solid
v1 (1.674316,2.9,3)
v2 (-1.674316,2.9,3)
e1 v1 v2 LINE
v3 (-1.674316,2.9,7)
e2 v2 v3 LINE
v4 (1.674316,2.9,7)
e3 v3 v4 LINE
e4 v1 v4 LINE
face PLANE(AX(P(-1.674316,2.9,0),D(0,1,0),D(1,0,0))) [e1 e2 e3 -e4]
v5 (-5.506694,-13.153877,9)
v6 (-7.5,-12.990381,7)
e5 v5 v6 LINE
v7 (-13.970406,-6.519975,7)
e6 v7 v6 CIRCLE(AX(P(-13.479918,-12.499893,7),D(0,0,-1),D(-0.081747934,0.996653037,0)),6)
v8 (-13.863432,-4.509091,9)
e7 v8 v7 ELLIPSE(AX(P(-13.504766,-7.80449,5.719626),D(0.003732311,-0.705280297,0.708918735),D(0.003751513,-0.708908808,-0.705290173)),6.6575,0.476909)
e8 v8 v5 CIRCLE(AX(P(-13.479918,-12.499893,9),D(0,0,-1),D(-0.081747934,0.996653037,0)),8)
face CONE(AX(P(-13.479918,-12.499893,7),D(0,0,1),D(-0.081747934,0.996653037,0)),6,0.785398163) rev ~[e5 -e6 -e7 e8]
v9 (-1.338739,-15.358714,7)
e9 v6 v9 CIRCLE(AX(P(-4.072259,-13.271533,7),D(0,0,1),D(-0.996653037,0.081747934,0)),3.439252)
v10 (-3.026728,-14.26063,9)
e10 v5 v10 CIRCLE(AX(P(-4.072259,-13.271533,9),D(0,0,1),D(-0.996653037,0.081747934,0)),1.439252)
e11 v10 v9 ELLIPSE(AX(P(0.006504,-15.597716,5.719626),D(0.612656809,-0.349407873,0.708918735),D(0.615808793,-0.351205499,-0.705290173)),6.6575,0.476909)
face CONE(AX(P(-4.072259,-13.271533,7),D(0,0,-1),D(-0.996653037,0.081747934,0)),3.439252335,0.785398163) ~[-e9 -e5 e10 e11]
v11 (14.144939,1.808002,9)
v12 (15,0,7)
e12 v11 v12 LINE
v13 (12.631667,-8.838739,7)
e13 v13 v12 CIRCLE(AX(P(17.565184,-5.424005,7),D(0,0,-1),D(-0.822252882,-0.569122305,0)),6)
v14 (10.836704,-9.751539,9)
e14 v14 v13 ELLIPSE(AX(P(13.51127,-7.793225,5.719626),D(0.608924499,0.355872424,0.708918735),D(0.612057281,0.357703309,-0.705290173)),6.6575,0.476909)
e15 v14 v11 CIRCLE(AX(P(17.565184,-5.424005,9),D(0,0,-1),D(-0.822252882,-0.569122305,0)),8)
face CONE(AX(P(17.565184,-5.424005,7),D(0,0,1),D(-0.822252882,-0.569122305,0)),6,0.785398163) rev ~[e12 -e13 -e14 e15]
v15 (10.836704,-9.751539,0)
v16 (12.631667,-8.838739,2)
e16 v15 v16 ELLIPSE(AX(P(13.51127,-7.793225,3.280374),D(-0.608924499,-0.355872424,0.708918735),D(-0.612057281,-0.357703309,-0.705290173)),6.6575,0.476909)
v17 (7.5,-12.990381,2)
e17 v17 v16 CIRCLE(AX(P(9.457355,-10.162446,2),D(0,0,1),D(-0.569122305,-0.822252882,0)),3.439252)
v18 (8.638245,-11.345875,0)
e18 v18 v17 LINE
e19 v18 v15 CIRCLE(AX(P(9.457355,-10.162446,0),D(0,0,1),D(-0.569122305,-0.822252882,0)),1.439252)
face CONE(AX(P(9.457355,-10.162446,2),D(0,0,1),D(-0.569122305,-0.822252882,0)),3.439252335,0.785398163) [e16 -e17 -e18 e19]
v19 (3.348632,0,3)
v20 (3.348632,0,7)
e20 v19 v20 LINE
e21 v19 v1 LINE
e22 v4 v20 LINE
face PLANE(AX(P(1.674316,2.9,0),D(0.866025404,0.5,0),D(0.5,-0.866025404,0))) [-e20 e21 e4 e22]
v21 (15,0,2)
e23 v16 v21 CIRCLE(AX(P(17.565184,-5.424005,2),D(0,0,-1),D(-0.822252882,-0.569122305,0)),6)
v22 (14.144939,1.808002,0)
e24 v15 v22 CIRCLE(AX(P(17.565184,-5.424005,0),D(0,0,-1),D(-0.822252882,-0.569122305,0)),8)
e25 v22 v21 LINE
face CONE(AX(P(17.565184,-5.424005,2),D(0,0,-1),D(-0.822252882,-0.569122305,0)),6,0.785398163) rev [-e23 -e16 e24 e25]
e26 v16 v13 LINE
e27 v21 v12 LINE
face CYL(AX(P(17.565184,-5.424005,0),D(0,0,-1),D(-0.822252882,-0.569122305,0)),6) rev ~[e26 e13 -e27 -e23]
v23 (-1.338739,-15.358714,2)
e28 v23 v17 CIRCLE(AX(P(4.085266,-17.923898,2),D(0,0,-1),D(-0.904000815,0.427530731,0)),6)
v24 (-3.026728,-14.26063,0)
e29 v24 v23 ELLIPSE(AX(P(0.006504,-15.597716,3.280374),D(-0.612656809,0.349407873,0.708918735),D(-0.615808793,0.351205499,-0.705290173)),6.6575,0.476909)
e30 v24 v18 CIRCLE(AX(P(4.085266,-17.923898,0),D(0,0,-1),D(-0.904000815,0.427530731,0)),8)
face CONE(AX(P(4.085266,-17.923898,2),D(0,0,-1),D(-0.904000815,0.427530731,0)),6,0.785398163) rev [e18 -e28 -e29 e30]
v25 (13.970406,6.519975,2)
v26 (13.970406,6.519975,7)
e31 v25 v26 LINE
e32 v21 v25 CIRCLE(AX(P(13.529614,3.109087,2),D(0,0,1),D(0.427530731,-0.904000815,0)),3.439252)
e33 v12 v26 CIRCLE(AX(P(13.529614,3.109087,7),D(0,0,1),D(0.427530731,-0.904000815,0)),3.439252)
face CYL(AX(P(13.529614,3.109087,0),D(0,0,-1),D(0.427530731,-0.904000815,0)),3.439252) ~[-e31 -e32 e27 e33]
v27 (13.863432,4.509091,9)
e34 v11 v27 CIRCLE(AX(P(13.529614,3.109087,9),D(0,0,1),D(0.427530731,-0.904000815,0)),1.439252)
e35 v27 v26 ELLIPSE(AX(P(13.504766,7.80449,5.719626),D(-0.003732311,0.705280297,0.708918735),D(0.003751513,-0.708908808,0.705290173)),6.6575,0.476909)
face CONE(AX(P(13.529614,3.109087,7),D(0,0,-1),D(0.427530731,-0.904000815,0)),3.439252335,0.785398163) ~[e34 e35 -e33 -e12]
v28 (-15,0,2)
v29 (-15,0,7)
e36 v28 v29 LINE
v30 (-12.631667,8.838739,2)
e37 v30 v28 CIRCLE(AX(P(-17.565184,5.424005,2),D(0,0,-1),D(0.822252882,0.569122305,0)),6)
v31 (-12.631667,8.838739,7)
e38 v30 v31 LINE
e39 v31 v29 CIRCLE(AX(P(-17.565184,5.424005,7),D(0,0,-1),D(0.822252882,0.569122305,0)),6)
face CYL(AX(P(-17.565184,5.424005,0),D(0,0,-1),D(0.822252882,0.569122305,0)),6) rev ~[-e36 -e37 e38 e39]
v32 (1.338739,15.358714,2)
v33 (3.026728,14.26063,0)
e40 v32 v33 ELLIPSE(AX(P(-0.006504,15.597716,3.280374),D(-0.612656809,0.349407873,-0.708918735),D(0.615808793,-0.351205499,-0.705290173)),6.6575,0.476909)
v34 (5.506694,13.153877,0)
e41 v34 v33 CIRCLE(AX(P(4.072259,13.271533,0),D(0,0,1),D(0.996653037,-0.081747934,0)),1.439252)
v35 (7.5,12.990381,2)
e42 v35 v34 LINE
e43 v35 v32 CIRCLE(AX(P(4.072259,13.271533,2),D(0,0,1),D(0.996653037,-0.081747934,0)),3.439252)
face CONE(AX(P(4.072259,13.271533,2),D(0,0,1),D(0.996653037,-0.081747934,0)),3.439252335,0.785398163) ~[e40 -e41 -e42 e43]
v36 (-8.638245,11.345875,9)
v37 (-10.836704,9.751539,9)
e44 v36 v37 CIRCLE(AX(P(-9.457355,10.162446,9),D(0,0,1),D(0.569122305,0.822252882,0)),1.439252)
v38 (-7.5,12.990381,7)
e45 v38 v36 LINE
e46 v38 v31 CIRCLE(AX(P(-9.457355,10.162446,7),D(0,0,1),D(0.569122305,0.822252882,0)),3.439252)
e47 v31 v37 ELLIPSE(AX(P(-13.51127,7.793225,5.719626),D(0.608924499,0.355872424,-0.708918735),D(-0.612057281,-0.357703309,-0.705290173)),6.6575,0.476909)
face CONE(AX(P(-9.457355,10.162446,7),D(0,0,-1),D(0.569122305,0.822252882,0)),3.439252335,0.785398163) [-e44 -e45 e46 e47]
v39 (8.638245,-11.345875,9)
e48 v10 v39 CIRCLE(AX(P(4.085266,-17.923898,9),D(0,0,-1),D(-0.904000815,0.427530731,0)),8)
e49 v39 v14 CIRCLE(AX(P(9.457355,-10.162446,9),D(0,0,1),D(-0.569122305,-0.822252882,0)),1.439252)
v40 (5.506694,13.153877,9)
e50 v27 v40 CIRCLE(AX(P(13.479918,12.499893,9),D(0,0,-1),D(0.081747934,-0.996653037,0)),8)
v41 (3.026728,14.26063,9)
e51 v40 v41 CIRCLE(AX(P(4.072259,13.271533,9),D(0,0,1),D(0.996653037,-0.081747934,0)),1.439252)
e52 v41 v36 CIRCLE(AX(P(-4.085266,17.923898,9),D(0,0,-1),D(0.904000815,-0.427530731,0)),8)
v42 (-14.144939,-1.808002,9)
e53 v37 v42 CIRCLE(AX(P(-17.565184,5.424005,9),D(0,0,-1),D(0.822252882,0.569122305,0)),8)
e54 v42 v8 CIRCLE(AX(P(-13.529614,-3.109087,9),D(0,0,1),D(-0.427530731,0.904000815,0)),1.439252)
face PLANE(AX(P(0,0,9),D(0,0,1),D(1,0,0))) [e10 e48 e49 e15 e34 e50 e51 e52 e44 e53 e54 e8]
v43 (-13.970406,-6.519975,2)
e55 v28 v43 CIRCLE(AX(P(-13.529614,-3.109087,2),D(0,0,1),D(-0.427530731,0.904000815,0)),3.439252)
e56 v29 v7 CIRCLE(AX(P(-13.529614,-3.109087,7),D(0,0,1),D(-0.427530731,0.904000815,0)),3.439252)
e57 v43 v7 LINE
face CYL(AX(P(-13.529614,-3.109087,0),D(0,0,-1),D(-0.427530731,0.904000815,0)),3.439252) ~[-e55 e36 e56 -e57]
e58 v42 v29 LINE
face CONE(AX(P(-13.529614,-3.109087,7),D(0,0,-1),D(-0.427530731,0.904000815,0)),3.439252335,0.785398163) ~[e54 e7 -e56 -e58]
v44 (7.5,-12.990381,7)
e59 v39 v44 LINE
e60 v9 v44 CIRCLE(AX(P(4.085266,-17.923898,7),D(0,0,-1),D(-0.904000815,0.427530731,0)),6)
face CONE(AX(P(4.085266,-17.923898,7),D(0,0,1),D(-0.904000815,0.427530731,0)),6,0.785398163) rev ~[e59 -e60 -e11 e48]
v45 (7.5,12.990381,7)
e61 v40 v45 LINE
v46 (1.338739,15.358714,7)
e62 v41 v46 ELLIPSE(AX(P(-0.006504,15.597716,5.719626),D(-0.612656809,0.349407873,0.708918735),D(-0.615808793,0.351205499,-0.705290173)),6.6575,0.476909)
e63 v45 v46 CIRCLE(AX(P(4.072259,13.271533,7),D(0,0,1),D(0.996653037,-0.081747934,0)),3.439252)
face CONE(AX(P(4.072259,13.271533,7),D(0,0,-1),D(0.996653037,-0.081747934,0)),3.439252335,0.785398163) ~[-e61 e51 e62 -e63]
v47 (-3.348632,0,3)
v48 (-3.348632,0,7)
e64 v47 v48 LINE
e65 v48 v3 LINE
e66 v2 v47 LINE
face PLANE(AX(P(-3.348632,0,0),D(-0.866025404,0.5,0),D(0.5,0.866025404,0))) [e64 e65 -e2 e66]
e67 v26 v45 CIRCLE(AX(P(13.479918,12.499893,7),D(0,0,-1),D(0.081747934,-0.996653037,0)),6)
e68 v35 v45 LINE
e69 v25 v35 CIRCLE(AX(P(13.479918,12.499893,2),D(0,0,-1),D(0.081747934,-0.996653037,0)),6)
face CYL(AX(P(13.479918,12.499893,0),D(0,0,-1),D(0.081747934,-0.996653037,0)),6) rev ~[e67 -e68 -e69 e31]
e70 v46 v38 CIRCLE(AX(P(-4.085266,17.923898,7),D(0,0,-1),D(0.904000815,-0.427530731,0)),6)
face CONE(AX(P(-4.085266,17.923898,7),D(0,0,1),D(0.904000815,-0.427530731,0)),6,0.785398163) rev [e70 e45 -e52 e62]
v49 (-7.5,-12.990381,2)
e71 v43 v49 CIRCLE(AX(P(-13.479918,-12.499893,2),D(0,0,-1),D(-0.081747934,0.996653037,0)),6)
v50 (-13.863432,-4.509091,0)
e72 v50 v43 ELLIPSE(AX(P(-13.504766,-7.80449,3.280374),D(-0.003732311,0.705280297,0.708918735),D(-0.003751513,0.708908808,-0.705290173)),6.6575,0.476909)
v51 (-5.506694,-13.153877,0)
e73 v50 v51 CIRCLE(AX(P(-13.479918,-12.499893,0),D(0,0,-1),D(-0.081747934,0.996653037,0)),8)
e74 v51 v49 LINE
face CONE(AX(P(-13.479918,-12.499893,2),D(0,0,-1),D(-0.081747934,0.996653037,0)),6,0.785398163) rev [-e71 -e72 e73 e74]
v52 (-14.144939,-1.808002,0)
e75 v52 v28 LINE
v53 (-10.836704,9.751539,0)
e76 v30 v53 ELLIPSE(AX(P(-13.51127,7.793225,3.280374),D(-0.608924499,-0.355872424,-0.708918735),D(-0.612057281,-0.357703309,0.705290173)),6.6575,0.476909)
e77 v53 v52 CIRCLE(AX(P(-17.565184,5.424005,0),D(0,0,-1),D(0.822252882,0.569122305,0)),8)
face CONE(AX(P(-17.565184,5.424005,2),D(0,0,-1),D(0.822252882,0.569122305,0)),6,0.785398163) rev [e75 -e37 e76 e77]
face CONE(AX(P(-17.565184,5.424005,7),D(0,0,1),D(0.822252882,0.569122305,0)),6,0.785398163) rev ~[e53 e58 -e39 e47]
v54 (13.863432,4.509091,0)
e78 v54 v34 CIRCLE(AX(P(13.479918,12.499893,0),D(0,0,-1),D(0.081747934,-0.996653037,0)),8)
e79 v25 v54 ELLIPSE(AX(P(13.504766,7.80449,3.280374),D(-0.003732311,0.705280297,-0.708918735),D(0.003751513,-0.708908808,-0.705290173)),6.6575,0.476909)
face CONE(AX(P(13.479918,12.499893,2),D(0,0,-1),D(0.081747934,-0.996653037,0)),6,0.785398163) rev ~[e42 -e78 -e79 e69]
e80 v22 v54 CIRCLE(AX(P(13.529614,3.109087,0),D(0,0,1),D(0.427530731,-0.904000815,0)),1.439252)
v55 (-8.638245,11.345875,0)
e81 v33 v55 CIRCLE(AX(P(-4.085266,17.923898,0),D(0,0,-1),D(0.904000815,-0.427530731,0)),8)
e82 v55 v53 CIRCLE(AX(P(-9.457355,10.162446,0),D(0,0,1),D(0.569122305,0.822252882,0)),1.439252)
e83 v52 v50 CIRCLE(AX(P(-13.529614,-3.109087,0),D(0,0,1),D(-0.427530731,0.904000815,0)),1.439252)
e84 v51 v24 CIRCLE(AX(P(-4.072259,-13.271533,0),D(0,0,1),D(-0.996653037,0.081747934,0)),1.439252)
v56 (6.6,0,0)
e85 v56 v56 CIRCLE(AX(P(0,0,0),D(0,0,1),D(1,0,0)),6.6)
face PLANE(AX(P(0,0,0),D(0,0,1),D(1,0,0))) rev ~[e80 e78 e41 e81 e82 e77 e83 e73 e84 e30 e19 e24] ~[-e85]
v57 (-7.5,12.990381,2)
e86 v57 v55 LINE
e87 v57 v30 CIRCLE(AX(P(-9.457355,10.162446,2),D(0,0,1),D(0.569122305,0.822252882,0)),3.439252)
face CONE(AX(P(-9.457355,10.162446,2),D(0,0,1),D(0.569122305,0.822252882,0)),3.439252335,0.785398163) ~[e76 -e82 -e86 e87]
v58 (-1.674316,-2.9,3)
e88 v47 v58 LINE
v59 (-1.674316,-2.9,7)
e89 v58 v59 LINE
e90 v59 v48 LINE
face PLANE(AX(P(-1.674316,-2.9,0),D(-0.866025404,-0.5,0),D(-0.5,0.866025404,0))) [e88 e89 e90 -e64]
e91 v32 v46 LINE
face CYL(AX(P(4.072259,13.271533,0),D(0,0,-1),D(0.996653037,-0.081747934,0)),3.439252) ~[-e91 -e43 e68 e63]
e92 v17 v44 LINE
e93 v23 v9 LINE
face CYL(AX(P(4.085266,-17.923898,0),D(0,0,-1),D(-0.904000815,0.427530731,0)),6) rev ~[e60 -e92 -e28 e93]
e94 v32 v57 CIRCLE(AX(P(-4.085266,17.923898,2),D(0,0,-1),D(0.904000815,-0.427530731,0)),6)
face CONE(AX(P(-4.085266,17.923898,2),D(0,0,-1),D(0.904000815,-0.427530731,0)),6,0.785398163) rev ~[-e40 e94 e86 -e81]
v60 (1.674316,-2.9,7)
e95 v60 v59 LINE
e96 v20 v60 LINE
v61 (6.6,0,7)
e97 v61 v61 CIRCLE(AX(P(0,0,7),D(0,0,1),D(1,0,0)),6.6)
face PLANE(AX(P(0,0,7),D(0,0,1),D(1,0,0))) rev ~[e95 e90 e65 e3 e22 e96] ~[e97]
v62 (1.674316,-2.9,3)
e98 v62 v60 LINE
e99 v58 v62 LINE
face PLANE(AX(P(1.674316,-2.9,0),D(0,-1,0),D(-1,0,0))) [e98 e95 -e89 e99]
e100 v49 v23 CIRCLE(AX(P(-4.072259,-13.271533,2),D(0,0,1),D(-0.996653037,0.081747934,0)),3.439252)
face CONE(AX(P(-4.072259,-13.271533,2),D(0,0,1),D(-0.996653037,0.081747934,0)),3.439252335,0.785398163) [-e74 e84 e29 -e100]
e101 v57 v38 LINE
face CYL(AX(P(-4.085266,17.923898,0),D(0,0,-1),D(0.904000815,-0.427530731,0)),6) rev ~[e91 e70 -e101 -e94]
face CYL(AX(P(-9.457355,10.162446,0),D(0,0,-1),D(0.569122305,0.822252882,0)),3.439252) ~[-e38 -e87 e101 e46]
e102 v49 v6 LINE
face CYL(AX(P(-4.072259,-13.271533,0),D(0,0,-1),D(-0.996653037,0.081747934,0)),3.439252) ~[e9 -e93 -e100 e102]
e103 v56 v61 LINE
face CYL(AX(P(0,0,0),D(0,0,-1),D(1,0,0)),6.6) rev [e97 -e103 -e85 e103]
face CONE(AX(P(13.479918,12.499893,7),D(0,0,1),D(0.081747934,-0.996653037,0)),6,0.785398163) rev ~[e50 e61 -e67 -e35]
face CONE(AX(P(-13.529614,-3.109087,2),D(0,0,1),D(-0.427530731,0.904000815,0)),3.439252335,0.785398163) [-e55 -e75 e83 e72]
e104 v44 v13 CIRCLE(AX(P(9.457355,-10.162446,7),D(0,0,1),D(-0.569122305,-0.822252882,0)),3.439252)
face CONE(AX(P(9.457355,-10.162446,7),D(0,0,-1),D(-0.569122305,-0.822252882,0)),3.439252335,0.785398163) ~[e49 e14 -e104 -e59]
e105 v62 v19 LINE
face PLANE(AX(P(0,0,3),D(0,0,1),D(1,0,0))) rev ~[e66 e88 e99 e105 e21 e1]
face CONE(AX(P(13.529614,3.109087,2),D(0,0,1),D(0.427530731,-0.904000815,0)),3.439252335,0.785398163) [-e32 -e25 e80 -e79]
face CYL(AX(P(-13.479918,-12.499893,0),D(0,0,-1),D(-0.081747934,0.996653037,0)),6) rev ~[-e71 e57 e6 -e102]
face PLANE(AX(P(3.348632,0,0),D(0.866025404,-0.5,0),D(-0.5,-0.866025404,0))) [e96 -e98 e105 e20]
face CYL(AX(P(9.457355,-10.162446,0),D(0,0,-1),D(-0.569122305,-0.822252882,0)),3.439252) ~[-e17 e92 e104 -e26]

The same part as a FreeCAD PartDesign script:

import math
import FreeCAD as App
import Part
import Sketcher
from FreeCAD import Vector
Q = App.Units.Quantity


def edges_at(feature, points):
    """Names of the edges that pass closest to the given points."""
    edges = feature.Shape.Edges
    near = lambda p: min(range(len(edges)), key=lambda i: edges[i].distToShape(Part.Vertex(*p))[0])
    return sorted({f"Edge{near(p) + 1}" for p in points})

doc = App.newDocument("Part")
params = doc.addObject("Spreadsheet::Sheet", "Params")
for row, (alias, value) in enumerate([
    ("sketch1_radius", "6 mm"),
    ("pad1_length", "9 mm"),
    ("sketch2_diameter", "13.2 mm"),
    ("pocket1_length", "7 mm"),
    ("chamfer_size", "2 mm"),
    ("pocket2_length", "3 mm"),
], start=1):
    params.set(f"A{row}", alias)
    params.set(f"B{row}", "=" + value)
    params.setAlias(f"B{row}", alias)

body = doc.addObject("PartDesign::Body", "Body")

sketch1 = body.newObject("Sketcher::SketchObject", "Sketch")
sketch1.AttachmentSupport = (doc.getObject("XY_Plane"), [""])
sketch1.MapMode = "FlatFace"
sketch1.addGeometry([
    Part.ArcOfCircle(Part.Circle(Vector(-4.1, 17.9, 0), Vector(0, 0, 1), 6), math.radians(-125), math.radians(-25)),
    Part.ArcOfCircle(Part.Circle(Vector(-9.5, 10.2, 0), Vector(0, 0, 1), 3.4), math.radians(55), math.radians(203)),
    Part.ArcOfCircle(Part.Circle(Vector(-17.6, 5.4, 0), Vector(0, 0, 1), 6), math.radians(-65), math.radians(35)),
    Part.ArcOfCircle(Part.Circle(Vector(-13.5, -3.1, 0), Vector(0, 0, 1), 3.4), math.radians(115), math.radians(263)),
    Part.ArcOfCircle(Part.Circle(Vector(-13.5, -12.5, 0), Vector(0, 0, 1), 6), math.radians(-5), math.radians(95)),
    Part.ArcOfCircle(Part.Circle(Vector(-4.1, -13.3, 0), Vector(0, 0, 1), 3.4), math.radians(175), math.radians(323)),
    Part.ArcOfCircle(Part.Circle(Vector(4.1, -17.9, 0), Vector(0, 0, 1), 6), math.radians(55), math.radians(155)),
    Part.ArcOfCircle(Part.Circle(Vector(9.5, -10.2, 0), Vector(0, 0, 1), 3.4), math.radians(-125), math.radians(23)),
    Part.ArcOfCircle(Part.Circle(Vector(17.6, -5.4, 0), Vector(0, 0, 1), 6), math.radians(115), math.radians(215)),
    Part.ArcOfCircle(Part.Circle(Vector(13.5, 3.1, 0), Vector(0, 0, 1), 3.4), math.radians(-65), math.radians(83)),
    Part.ArcOfCircle(Part.Circle(Vector(13.5, 12.5, 0), Vector(0, 0, 1), 6), math.radians(175), math.radians(275)),
    Part.ArcOfCircle(Part.Circle(Vector(4.1, 13.3, 0), Vector(0, 0, 1), 3.4), math.radians(-5), math.radians(143)),
], False)
sketch1.addConstraint([
    Sketcher.Constraint("Tangent", 0, 1, 1, 1),
    Sketcher.Constraint("Coincident", 1, 2, 2, 2),
    Sketcher.Constraint("Tangent", 2, 1, 3, 1),
    Sketcher.Constraint("Coincident", 3, 2, 4, 2),
    Sketcher.Constraint("Tangent", 4, 1, 5, 1),
    Sketcher.Constraint("Coincident", 5, 2, 6, 2),
    Sketcher.Constraint("Tangent", 6, 1, 7, 1),
    Sketcher.Constraint("Coincident", 7, 2, 8, 2),
    Sketcher.Constraint("Tangent", 8, 1, 9, 1),
    Sketcher.Constraint("Coincident", 9, 2, 10, 2),
    Sketcher.Constraint("Tangent", 10, 1, 11, 1),
    Sketcher.Constraint("Coincident", 11, 2, 0, 2),
    Sketcher.Constraint("Equal", 0, 2),
    Sketcher.Constraint("Equal", 1, 3),
    Sketcher.Constraint("Equal", 2, 4),
    Sketcher.Constraint("Equal", 3, 5),
    Sketcher.Constraint("Equal", 4, 6),
    Sketcher.Constraint("Equal", 5, 7),
    Sketcher.Constraint("Equal", 6, 8),
    Sketcher.Constraint("Equal", 7, 9),
    Sketcher.Constraint("Equal", 8, 10),
    Sketcher.Constraint("Equal", 9, 11),
    Sketcher.Constraint("Symmetric", 0, 3, 6, 3, -1, 1),
    Sketcher.Constraint("Symmetric", 2, 3, 8, 3, -1, 1),
    Sketcher.Constraint("Symmetric", 4, 3, 10, 3, -1, 1),
    Sketcher.Constraint("Symmetric", 4, 1, 6, 1, -2),
    Sketcher.Constraint("Symmetric", 2, 1, 8, 1, -2),
    Sketcher.Constraint("Symmetric", 0, 1, 10, 1, -2),
    Sketcher.Constraint("Radius", 0, 6.0),
    Sketcher.Constraint("DistanceX", 2, 1, -1, 1, 15.0),
    Sketcher.Constraint("DistanceX", 0, 1, -1, 1, 7.5),
    Sketcher.Constraint("Radius", 1, 3.439252),
    Sketcher.Constraint("DistanceY", -1, 1, 0, 3, 17.923898),
    Sketcher.Constraint("DistanceY", 4, 3, 2, 3, 17.923898),
    Sketcher.Constraint("DistanceX", 3, 3, 8, 3, 31.094798),
    Sketcher.Constraint("DistanceX", 1, 2, 0, 3, 8.546401),
])
sketch1.setExpression("Constraints[28]", "Params.sketch1_radius")
pad1 = body.newObject("PartDesign::Pad", "Pad")
pad1.Profile = sketch1
pad1.setExpression("Length", "Params.pad1_length")

sketch2 = body.newObject("Sketcher::SketchObject", "Sketch001")
sketch2.AttachmentSupport = (doc.getObject("XY_Plane"), [""])
sketch2.MapMode = "FlatFace"
sketch2.addGeometry([
    Part.Circle(Vector(0, 0, 0), Vector(0, 0, 1), 6.6),
    Part.LineSegment(Vector(1.7, -2.9, 0), Vector(-1.7, -2.9, 0)),
    Part.LineSegment(Vector(-1.7, -2.9, 0), Vector(-3.3, 0, 0)),
    Part.LineSegment(Vector(-3.3, 0, 0), Vector(-1.7, 2.9, 0)),
    Part.LineSegment(Vector(-1.7, 2.9, 0), Vector(1.7, 2.9, 0)),
    Part.LineSegment(Vector(1.7, 2.9, 0), Vector(3.3, 0, 0)),
    Part.LineSegment(Vector(3.3, 0, 0), Vector(1.7, -2.9, 0)),
], False)
sketch2.addConstraint([
    Sketcher.Constraint("Coincident", 1, 2, 2, 1),
    Sketcher.Constraint("Coincident", 2, 2, 3, 1),
    Sketcher.Constraint("Coincident", 3, 2, 4, 1),
    Sketcher.Constraint("Coincident", 4, 2, 5, 1),
    Sketcher.Constraint("Coincident", 5, 2, 6, 1),
    Sketcher.Constraint("Coincident", 6, 2, 1, 1),
    Sketcher.Constraint("Horizontal", 1),
    Sketcher.Constraint("Horizontal", 4),
    Sketcher.Constraint("Coincident", 0, 3, -1, 1),
    Sketcher.Constraint("Symmetric", 1, 2, 4, 2, -1, 1),
    Sketcher.Constraint("Symmetric", 2, 2, 5, 2, -1, 1),
    Sketcher.Constraint("PointOnObject", 2, 2, -1),
    Sketcher.Constraint("Parallel", 3, 6),
    Sketcher.Constraint("Vertical", 1, 2, 3, 2),
    Sketcher.Constraint("Diameter", 0, 13.2),
    Sketcher.Constraint("Angle", 2, Q("120 deg")),
    Sketcher.Constraint("DistanceY", 1, 2, -1, 1, 2.9),
    Sketcher.Constraint("DistanceX", 1, 2, 1, 1, 3.348632),
])
sketch2.setExpression("Constraints[14]", "Params.sketch2_diameter")
pocket1 = body.newObject("PartDesign::Pocket", "Pocket")
pocket1.Profile = sketch2
pocket1.setExpression("Length", "Params.pocket1_length")
pocket1.Reversed = True
doc.recompute()

chamfer = body.newObject("PartDesign::Chamfer", "Chamfer")
chamfer.Base = (pocket1, edges_at(pocket1, [
    (-2.532, 12.128, 0),
    (5.306, 16.482, 0),
    (9.237, 8.257, 0),
    (16.927, 3.646, 0),
    (11.77, -3.871, 0),
    (2.532, -12.128, 0),
    (-5.306, -16.482, 0),
    (-9.237, -8.257, 0),
    (-16.927, -3.646, 0),
    (-11.77, 3.871, 0),
    (9.237, 8.257, 9),
    (5.306, 16.482, 9),
    (-2.532, 12.128, 9),
    (-11.621, 12.836, 9),
    (-11.77, 3.871, 9),
    (-16.927, -3.646, 9),
    (-9.237, -8.257, 9),
    (-5.306, -16.482, 9),
    (2.532, -12.128, 9),
    (11.621, -12.836, 9),
    (11.77, -3.871, 9),
    (16.927, 3.646, 9),
]))
chamfer.setExpression("Size", "Params.chamfer_size")

sketch3 = body.newObject("Sketcher::SketchObject", "Sketch002")
sketch3.AttachmentSupport = (doc.getObject("XY_Plane"), [""])
sketch3.MapMode = "FlatFace"
sketch3.addGeometry([
    Part.LineSegment(Vector(-1.7, 2.9, 0), Vector(-3.3, 0, 0)),
    Part.LineSegment(Vector(-3.3, 0, 0), Vector(-1.7, -2.9, 0)),
    Part.LineSegment(Vector(-1.7, -2.9, 0), Vector(1.7, -2.9, 0)),
    Part.LineSegment(Vector(1.7, -2.9, 0), Vector(3.3, 0, 0)),
    Part.LineSegment(Vector(3.3, 0, 0), Vector(1.7, 2.9, 0)),
    Part.LineSegment(Vector(1.7, 2.9, 0), Vector(-1.7, 2.9, 0)),
], False)
sketch3.addConstraint([
    Sketcher.Constraint("Coincident", 0, 2, 1, 1),
    Sketcher.Constraint("Coincident", 1, 2, 2, 1),
    Sketcher.Constraint("Coincident", 2, 2, 3, 1),
    Sketcher.Constraint("Coincident", 3, 2, 4, 1),
    Sketcher.Constraint("Coincident", 4, 2, 5, 1),
    Sketcher.Constraint("Coincident", 5, 2, 0, 1),
    Sketcher.Constraint("Horizontal", 2),
    Sketcher.Constraint("Horizontal", 5),
    Sketcher.Constraint("Symmetric", 0, 2, 3, 2, -1, 1),
    Sketcher.Constraint("Symmetric", 1, 2, 4, 2, -1, 1),
    Sketcher.Constraint("PointOnObject", 0, 2, -1),
    Sketcher.Constraint("Parallel", 0, 3),
    Sketcher.Constraint("Vertical", 2, 2, 4, 2),
    Sketcher.Constraint("Angle", 0, Q("-120 deg")),
    Sketcher.Constraint("DistanceY", 1, 2, -1, 1, 2.9),
    Sketcher.Constraint("DistanceX", 2, 1, 2, 2, 3.348632),
])
pocket2 = body.newObject("PartDesign::Pocket", "Pocket001")
pocket2.Profile = sketch3
pocket2.setExpression("Length", "Params.pocket2_length")
pocket2.Reversed = True

doc.recompute()
